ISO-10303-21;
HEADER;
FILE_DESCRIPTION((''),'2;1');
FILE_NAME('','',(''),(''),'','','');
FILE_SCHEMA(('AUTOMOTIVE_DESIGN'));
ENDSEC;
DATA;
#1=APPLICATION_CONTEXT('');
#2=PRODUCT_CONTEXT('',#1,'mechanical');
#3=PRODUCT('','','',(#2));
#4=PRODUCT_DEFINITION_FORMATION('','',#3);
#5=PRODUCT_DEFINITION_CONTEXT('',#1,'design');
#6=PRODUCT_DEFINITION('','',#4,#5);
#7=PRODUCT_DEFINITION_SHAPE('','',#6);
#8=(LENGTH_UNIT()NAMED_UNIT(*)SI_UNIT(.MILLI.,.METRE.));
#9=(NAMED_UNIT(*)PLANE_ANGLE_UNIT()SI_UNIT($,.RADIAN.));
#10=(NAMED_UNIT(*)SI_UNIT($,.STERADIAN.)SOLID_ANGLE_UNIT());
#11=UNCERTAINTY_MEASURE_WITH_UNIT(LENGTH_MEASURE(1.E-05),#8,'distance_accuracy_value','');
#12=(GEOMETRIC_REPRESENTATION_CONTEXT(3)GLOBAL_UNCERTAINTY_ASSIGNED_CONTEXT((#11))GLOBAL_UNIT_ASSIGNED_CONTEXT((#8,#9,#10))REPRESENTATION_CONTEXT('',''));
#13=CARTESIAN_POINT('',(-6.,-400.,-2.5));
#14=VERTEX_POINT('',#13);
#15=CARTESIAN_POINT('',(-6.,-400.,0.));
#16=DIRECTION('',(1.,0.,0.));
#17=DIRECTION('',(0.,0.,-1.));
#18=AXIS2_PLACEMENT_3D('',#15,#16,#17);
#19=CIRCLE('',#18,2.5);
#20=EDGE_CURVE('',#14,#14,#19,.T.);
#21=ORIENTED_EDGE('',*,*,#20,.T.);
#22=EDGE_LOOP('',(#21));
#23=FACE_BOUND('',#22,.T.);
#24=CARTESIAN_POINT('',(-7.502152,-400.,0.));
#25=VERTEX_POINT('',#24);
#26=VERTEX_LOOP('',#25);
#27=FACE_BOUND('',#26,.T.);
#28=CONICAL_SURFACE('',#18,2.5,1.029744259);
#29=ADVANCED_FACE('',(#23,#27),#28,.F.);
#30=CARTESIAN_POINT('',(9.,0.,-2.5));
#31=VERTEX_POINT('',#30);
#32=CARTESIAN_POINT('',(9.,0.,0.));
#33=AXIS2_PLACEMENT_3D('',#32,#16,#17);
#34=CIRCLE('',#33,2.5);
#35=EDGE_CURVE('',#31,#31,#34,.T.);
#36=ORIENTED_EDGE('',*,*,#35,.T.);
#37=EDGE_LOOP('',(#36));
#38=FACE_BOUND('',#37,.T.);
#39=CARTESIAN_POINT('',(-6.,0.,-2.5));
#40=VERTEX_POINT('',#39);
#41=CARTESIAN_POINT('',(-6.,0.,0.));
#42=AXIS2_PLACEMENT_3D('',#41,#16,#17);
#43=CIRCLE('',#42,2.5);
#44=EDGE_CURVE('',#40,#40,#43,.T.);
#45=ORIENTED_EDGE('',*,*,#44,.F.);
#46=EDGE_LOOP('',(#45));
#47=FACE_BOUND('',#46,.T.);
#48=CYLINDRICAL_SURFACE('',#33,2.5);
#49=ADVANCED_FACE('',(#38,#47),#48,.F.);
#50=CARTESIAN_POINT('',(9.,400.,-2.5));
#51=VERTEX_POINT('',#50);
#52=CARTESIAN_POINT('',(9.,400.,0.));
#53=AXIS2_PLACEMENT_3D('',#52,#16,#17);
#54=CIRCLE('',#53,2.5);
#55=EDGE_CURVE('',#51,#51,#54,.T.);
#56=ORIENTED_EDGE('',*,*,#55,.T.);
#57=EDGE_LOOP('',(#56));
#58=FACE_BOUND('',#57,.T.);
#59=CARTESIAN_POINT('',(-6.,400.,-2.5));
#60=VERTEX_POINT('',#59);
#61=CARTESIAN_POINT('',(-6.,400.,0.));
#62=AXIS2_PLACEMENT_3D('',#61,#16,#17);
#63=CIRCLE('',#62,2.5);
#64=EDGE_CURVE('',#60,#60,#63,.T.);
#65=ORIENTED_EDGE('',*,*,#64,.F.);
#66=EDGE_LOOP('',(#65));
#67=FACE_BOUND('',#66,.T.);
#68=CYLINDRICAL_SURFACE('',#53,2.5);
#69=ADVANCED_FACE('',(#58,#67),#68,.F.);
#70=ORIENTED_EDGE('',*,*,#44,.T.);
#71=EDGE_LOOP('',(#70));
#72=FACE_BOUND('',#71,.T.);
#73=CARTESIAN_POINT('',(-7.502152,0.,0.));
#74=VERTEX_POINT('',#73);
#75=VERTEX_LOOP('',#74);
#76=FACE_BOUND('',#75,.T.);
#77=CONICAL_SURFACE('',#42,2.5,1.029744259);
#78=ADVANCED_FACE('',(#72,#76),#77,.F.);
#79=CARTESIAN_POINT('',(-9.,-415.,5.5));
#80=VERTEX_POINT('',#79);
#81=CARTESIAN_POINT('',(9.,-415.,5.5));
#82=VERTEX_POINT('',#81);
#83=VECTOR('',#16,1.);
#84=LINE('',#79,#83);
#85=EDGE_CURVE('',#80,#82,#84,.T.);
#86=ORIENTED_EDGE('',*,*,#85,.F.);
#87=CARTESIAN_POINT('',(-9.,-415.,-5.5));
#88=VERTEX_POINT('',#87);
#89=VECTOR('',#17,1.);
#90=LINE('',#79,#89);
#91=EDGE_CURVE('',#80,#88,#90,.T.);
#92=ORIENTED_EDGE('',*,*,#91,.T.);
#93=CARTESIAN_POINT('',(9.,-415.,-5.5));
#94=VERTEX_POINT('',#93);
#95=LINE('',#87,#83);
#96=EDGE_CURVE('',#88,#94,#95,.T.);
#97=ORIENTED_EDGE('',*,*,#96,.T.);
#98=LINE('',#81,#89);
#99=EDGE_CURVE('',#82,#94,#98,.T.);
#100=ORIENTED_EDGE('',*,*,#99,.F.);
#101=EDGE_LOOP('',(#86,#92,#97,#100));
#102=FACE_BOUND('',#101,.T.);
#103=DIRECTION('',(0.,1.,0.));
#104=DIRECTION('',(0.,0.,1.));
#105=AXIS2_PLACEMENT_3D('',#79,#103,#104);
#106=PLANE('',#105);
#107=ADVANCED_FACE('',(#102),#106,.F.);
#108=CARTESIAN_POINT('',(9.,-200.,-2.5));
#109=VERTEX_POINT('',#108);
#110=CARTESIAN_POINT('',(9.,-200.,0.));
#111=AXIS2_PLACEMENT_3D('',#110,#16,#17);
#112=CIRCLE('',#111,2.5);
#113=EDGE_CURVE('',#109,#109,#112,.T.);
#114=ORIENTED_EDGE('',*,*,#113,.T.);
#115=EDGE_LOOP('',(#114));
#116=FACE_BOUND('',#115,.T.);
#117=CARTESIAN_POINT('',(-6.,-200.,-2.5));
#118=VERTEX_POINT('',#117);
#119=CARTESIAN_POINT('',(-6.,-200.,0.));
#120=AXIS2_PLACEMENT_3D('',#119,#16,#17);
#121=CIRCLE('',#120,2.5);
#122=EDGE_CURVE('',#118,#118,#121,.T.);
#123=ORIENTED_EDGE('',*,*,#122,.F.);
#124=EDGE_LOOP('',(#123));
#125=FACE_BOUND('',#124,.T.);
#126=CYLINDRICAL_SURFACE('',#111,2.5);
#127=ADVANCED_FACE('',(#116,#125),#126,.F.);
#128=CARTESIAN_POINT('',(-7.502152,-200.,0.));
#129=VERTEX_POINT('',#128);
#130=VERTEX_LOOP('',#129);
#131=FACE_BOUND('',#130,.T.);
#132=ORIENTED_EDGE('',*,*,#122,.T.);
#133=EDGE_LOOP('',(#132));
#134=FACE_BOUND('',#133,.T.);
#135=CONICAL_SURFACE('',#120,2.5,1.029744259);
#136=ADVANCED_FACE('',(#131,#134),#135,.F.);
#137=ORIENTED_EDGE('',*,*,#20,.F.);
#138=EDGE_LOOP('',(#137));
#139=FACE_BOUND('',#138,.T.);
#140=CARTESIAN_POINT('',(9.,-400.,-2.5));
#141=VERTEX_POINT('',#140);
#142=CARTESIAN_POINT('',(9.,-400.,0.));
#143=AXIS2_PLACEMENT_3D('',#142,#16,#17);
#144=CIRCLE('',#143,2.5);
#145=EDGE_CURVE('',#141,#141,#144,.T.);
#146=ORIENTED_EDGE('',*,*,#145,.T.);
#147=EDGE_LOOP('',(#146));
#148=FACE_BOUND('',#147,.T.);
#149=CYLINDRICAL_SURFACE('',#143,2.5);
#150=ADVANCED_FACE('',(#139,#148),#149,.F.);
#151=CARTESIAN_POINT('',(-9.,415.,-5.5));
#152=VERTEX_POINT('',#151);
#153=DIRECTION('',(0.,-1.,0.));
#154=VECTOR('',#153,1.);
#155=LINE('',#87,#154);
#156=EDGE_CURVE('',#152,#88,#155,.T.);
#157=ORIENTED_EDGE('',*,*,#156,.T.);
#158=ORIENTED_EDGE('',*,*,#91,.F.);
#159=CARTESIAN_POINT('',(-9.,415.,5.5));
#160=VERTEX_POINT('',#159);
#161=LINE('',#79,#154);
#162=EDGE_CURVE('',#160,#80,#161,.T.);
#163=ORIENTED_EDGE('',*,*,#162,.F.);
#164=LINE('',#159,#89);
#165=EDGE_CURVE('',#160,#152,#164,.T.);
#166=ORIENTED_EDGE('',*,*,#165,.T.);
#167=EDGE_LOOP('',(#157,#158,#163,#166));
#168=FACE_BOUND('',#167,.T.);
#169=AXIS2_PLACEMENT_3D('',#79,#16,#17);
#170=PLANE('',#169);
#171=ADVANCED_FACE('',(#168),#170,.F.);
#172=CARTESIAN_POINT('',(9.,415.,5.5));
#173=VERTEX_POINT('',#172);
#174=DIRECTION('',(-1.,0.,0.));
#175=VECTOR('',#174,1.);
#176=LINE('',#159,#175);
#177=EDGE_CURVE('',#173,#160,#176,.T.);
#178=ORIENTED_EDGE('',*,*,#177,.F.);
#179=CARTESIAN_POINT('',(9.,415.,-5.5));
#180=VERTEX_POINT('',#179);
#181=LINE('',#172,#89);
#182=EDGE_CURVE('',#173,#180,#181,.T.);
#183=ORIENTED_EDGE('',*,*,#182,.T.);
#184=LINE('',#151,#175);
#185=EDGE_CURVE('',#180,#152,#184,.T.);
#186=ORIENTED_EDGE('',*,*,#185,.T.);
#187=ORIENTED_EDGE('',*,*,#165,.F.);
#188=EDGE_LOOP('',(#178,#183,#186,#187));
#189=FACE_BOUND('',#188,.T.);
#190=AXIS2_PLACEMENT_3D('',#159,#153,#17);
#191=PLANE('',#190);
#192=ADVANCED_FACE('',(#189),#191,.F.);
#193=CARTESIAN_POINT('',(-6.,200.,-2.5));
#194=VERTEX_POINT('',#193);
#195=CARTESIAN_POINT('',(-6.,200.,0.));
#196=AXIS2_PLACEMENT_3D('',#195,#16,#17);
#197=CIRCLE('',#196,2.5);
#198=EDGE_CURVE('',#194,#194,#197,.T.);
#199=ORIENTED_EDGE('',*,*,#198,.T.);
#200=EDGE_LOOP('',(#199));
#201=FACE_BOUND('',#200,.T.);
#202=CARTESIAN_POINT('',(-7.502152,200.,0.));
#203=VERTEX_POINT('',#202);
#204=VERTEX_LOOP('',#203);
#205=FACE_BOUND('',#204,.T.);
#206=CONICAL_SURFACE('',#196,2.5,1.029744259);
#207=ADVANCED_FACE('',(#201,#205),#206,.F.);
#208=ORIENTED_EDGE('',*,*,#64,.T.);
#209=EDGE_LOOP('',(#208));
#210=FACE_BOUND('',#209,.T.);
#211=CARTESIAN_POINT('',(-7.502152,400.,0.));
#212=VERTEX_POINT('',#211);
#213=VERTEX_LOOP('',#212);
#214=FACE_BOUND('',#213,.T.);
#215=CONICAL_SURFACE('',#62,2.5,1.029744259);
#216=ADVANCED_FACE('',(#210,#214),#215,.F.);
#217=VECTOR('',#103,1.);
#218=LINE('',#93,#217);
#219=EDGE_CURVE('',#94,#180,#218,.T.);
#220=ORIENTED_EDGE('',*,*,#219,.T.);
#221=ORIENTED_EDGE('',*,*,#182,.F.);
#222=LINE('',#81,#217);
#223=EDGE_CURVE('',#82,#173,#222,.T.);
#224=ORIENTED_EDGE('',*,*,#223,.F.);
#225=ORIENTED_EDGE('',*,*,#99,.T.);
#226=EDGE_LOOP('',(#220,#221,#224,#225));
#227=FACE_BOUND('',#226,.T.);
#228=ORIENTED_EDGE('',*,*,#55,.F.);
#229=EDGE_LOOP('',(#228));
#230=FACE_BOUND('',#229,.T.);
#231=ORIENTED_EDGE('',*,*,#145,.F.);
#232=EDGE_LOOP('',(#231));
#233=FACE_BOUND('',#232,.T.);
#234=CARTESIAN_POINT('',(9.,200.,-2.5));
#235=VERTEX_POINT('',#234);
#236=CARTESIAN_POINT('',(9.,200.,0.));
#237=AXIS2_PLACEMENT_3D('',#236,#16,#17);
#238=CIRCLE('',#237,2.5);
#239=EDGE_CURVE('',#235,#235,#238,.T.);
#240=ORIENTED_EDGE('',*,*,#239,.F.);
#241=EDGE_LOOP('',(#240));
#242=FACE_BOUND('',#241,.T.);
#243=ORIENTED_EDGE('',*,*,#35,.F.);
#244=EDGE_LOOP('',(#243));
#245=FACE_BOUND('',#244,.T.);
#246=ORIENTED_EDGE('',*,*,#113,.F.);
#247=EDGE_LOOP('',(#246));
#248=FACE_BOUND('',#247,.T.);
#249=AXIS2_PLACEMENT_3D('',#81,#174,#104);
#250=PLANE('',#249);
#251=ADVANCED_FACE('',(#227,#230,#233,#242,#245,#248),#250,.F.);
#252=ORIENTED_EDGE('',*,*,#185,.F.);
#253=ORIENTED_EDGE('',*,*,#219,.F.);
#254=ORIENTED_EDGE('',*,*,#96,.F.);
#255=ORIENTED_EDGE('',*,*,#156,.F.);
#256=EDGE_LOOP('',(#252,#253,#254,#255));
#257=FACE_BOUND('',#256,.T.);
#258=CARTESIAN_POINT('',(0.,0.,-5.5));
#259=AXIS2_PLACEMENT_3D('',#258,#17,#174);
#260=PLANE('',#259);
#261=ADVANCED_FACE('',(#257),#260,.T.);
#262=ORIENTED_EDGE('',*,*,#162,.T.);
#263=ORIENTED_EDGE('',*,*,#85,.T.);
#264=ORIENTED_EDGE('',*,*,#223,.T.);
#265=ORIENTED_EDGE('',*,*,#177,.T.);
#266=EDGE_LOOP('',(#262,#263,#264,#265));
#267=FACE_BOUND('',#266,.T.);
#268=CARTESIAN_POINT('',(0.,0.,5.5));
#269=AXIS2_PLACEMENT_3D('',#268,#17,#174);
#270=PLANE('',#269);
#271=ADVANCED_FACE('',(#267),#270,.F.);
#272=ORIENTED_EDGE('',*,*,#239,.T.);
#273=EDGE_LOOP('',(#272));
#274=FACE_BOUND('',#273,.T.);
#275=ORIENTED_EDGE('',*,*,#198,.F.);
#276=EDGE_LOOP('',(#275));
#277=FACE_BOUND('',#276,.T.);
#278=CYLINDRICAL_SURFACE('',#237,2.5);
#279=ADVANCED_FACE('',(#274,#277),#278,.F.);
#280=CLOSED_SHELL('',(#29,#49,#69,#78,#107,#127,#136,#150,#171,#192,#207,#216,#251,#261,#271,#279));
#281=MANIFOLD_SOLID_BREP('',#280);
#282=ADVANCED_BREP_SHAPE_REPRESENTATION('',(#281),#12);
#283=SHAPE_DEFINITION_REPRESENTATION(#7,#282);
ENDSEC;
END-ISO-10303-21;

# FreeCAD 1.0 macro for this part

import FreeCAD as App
import Part
import Sketcher
from FreeCAD import Vector
Q = App.Units.Quantity


def add_polygon(sketch, points):
    """Adds a closed chain of lines whose ends are joined by coincident constraints."""
    first, n = sketch.GeometryCount, len(points)
    for a, b in zip(points, points[1:] + points[:1]):
        sketch.addGeometry(Part.LineSegment(App.Vector(*a, 0), App.Vector(*b, 0)), False)
    for i in range(n):
        sketch.addConstraint(Sketcher.Constraint("Coincident", first + i, 2, first + (i + 1) % n, 1))

doc = App.newDocument("Part")
body = doc.addObject("PartDesign::Body", "Body")

sketch1 = doc.addObject("Sketcher::SketchObject", "Sketch")
body.addObject(sketch1)
sketch1.AttachmentSupport = (doc.XY_Plane, [""])
sketch1.MapMode = "FlatFace"
add_polygon(sketch1, [(-9, 415), (-9, -415), (9, -415), (9, 415)])
sketch1.addConstraint([
    Sketcher.Constraint("Vertical", 0),
    Sketcher.Constraint("Horizontal", 1),
    Sketcher.Constraint("Vertical", 2),
    Sketcher.Constraint("Horizontal", 3),
    Sketcher.Constraint("Symmetric", 0, 2, 2, 2, -1, 1),
    Sketcher.Constraint("DistanceX", 1, 1, 1, 2, Q("18 mm")),
    Sketcher.Constraint("DistanceY", 0, 2, 0, 1, Q("830 mm")),
])
pad1 = doc.addObject("PartDesign::Pad", "Pad")
body.addObject(pad1)
pad1.Profile = sketch1
pad1.Length = 11
pad1.Midplane = True

sketch2 = doc.addObject("Sketcher::SketchObject", "Sketch001")
body.addObject(sketch2)
sketch2.AttachmentSupport = (doc.YZ_Plane, [""])
sketch2.MapMode = "FlatFace"
sketch2.AttachmentOffset = App.Placement(Vector(0, 0, 9), App.Rotation())
sketch2.addGeometry([
    Part.Circle(Vector(-400, 0, 0), Vector(0, 0, 1), 2.5),
    Part.Circle(Vector(-200, 0, 0), Vector(0, 0, 1), 2.5),
    Part.Circle(Vector(0, 0, 0), Vector(0, 0, 1), 2.5),
    Part.Circle(Vector(200, 0, 0), Vector(0, 0, 1), 2.5),
    Part.Circle(Vector(400, 0, 0), Vector(0, 0, 1), 2.5),
], False)
sketch2.addConstraint([
    Sketcher.Constraint("Coincident", 2, 3, -1, 1),
    Sketcher.Constraint("Equal", 0, 1),
    Sketcher.Constraint("Equal", 1, 2),
    Sketcher.Constraint("Equal", 2, 3),
    Sketcher.Constraint("Equal", 3, 4),
    Sketcher.Constraint("Symmetric", 1, 3, 3, 3, -1, 1),
    Sketcher.Constraint("Symmetric", 0, 3, 4, 3, -1, 1),
    Sketcher.Constraint("PointOnObject", 0, 3, -1),
    Sketcher.Constraint("PointOnObject", 1, 3, -1),
    Sketcher.Constraint("Diameter", 0, Q("5 mm")),
    Sketcher.Constraint("DistanceX", 0, 3, -1, 1, Q("400 mm")),
    Sketcher.Constraint("DistanceX", 1, 3, -1, 1, Q("200 mm")),
])
doc.recompute()
hole = doc.addObject("PartDesign::Hole", "Hole")
body.addObject(hole)
hole.Profile = sketch2
hole.ThreadType = "None"
hole.Diameter = 5
hole.DepthType = "Dimension"
hole.Depth = 15
hole.DrillPoint = "Angled"
hole.DrillPointAngle = 118

doc.recompute()
